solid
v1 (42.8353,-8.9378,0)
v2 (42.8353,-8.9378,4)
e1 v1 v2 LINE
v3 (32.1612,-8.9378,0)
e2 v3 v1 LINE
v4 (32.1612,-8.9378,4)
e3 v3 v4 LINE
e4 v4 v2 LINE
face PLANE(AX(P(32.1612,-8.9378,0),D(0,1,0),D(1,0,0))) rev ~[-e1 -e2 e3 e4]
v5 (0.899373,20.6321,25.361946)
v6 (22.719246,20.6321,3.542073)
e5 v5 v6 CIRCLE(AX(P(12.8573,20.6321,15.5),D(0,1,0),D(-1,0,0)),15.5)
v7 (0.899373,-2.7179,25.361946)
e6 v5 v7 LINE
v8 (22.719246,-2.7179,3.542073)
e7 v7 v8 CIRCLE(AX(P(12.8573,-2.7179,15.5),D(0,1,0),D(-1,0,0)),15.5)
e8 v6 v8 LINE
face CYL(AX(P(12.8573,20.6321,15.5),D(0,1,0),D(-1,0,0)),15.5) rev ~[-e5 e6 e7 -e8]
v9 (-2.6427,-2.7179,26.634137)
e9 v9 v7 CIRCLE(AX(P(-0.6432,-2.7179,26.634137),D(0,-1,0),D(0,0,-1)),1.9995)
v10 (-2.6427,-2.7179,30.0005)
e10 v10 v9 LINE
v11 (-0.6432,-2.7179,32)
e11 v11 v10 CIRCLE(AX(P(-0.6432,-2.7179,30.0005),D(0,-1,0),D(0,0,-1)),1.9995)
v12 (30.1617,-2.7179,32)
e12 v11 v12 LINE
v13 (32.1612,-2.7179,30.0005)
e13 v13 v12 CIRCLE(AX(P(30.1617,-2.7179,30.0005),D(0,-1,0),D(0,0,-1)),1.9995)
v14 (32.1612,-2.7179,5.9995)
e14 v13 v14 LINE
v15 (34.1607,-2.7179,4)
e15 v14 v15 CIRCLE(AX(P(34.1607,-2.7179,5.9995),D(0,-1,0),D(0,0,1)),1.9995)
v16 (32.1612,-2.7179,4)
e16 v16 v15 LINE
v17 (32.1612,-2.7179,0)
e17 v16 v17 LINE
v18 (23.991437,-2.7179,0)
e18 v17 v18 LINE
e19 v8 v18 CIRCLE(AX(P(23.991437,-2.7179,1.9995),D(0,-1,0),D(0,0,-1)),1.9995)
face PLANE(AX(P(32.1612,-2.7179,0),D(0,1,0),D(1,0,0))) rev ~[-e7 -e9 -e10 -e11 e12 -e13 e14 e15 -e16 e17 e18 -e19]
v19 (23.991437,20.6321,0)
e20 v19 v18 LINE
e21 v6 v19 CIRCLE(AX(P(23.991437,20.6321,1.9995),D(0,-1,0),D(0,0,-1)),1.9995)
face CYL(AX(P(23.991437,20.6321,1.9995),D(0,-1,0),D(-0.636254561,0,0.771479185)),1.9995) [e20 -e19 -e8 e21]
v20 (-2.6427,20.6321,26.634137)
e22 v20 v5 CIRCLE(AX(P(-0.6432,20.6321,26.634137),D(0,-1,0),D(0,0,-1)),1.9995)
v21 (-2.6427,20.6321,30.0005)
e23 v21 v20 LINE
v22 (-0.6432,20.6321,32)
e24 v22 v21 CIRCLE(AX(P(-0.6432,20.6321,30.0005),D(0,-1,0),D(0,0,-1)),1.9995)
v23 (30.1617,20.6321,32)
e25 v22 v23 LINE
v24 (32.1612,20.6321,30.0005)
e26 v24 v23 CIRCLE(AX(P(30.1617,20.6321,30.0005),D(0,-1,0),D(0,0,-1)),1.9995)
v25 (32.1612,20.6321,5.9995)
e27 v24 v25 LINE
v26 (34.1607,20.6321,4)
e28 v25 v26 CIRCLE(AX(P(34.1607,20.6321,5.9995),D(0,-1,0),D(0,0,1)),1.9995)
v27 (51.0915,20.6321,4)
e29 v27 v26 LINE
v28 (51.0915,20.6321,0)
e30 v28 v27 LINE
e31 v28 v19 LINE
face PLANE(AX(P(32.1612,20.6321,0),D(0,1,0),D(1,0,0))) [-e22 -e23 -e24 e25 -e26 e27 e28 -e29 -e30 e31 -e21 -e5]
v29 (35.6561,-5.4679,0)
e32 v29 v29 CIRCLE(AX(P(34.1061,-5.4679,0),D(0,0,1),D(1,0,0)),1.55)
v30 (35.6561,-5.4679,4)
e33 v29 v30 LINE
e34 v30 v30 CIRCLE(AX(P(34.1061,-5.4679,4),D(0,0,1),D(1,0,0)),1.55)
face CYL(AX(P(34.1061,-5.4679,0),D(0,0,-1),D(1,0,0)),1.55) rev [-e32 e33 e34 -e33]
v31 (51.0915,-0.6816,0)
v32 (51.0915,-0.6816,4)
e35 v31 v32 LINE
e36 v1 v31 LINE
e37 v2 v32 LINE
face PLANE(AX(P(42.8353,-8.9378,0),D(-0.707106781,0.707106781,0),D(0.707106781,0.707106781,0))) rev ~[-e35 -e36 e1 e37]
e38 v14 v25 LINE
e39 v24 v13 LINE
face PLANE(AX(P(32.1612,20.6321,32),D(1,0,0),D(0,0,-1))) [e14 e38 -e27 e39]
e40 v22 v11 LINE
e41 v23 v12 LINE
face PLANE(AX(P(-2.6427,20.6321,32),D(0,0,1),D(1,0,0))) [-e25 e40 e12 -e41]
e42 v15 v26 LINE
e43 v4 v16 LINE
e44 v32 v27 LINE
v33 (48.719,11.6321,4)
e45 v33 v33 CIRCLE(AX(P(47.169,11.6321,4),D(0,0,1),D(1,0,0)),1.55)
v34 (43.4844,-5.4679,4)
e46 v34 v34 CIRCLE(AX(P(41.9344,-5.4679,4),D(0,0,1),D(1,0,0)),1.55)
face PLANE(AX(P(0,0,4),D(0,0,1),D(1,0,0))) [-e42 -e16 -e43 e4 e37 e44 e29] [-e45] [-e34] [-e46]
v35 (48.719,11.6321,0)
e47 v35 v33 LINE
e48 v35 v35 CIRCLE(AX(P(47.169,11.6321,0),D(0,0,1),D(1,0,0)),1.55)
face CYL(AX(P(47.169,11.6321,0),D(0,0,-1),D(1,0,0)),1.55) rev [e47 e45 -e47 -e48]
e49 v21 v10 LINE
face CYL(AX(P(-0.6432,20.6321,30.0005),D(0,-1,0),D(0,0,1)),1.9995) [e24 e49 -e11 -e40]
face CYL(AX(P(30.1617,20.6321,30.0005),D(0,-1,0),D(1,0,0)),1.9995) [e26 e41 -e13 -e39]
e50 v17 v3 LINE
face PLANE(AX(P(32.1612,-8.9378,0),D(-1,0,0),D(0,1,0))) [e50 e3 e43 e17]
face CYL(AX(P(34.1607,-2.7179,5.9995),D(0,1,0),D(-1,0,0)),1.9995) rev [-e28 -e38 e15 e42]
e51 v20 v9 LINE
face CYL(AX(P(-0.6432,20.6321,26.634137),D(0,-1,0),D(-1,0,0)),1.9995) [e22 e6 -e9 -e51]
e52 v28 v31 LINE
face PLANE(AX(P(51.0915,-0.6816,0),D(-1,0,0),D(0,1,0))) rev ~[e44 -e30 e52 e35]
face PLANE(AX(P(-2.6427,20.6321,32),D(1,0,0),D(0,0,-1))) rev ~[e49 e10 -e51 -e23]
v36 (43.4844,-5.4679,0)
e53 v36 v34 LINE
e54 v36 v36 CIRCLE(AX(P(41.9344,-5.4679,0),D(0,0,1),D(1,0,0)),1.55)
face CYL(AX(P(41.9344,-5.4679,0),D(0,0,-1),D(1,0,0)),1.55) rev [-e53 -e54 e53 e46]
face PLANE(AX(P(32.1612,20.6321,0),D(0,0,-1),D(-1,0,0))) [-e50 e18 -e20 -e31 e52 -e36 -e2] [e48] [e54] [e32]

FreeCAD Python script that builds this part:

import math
import FreeCAD as App
import Part
import Sketcher
from FreeCAD import Vector
Q = App.Units.Quantity


def edges_at(feature, points):
    """Names of the edges that pass closest to the given points."""
    edges = feature.Shape.Edges
    near = lambda p: min(range(len(edges)), key=lambda i: edges[i].distToShape(Part.Vertex(*p))[0])
    return sorted({f"Edge{near(p) + 1}" for p in points})

doc = App.newDocument("Part")
body = doc.addObject("PartDesign::Body", "Body")

# Sketch on XY plane
sketch1 = doc.addObject("Sketcher::SketchObject", "Sketch")
body.addObject(sketch1)
sketch1.AttachmentSupport = (doc.XY_Plane, [""])
sketch1.MapMode = "FlatFace"
sketch1.addGeometry(Part.LineSegment(Vector(32.2, -8.9, 0), Vector(42.8, -8.9, 0)), False)
sketch1.addGeometry(Part.LineSegment(Vector(42.8, -8.9, 0), Vector(51.1, -0.7, 0)), False)
sketch1.addGeometry(Part.LineSegment(Vector(51.1, -0.7, 0), Vector(51.1, 20.6, 0)), False)
sketch1.addGeometry(Part.LineSegment(Vector(51.1, 20.6, 0), Vector(32.2, 20.6, 0)), False)
sketch1.addGeometry(Part.LineSegment(Vector(32.2, 20.6, 0), Vector(32.2, -8.9, 0)), False)
sketch1.addGeometry(Part.Circle(Vector(34.1, -5.5, 0), Vector(0, 0, 1), 1.6), False)
sketch1.addGeometry(Part.Circle(Vector(41.9, -5.5, 0), Vector(0, 0, 1), 1.6), False)
sketch1.addGeometry(Part.Circle(Vector(47.2, 11.6, 0), Vector(0, 0, 1), 1.6), False)
sketch1.addConstraint(Sketcher.Constraint("Coincident", 0, 2, 1, 1))
sketch1.addConstraint(Sketcher.Constraint("Coincident", 1, 2, 2, 1))
sketch1.addConstraint(Sketcher.Constraint("Coincident", 2, 2, 3, 1))
sketch1.addConstraint(Sketcher.Constraint("Coincident", 3, 2, 4, 1))
sketch1.addConstraint(Sketcher.Constraint("Coincident", 4, 2, 0, 1))
sketch1.addConstraint(Sketcher.Constraint("Horizontal", 0))
sketch1.addConstraint(Sketcher.Constraint("Vertical", 2))
sketch1.addConstraint(Sketcher.Constraint("Horizontal", 3))
sketch1.addConstraint(Sketcher.Constraint("Vertical", 4))
sketch1.addConstraint(Sketcher.Constraint("Equal", 5, 6))
sketch1.addConstraint(Sketcher.Constraint("Equal", 6, 7))
sketch1.addConstraint(Sketcher.Constraint("Horizontal", 5, 3, 6, 3))
sketch1.addConstraint(Sketcher.Constraint("Diameter", 5, Q("3.1 mm")))
sketch1.addConstraint(Sketcher.Constraint("Angle", 1, Q("45 deg")))
sketch1.addConstraint(Sketcher.Constraint("DistanceY", 7, 3, 2, 2, Q("9 mm")))
sketch1.addConstraint(Sketcher.Constraint("DistanceY", 4, 2, 4, 1, Q("29.57 mm")))
sketch1.addConstraint(Sketcher.Constraint("DistanceY", 6, 3, 7, 3, Q("17.1 mm")))
sketch1.addConstraint(Sketcher.Constraint("DistanceX", 0, 1, 0, 2, Q("10.674 mm")))
sketch1.addConstraint(Sketcher.Constraint("Distance", 1, Q("11.676 mm")))
sketch1.addConstraint(Sketcher.Constraint("DistanceX", -1, 1, 5, 3, Q("34.106 mm")))
sketch1.addConstraint(Sketcher.Constraint("DistanceY", 5, 3, -1, 1, Q("5.468 mm")))
sketch1.addConstraint(Sketcher.Constraint("DistanceX", -1, 1, 7, 3, Q("47.169 mm")))
sketch1.addConstraint(Sketcher.Constraint("DistanceX", 6, 3, 0, 2, Q("0.901 mm")))
sketch1.addConstraint(Sketcher.Constraint("DistanceX", 3, 2, 5, 3, Q("1.945 mm")))
pad1 = doc.addObject("PartDesign::Pad", "Pad")
body.addObject(pad1)
pad1.Profile = sketch1
pad1.Length = 4

# Sketch on XZ plane
sketch2 = doc.addObject("Sketcher::SketchObject", "Sketch001")
body.addObject(sketch2)
sketch2.AttachmentSupport = (doc.XZ_Plane, [""])
sketch2.MapMode = "FlatFace"
sketch2.AttachmentOffset = App.Placement(Vector(0, 0, -20.6321), App.Rotation())
sketch2.addGeometry(Part.LineSegment(Vector(32, 32, 0), Vector(32, 0, 0)), False)
sketch2.addGeometry(Part.LineSegment(Vector(32, 0, 0), Vector(13, 0, 0)), False)
sketch2.addGeometry(Part.ArcOfCircle(Part.Circle(Vector(13, 16, 0), Vector(0, 0, 1), 16), math.radians(-90), math.radians(180)), False)
sketch2.addGeometry(Part.LineSegment(Vector(-3, 16, 0), Vector(-3, 32, 0)), False)
sketch2.addGeometry(Part.LineSegment(Vector(-3, 32, 0), Vector(32, 32, 0)), False)
sketch2.addConstraint(Sketcher.Constraint("Coincident", 0, 2, 1, 1))
sketch2.addConstraint(Sketcher.Constraint("Tangent", 1, 2, 2, 1))
sketch2.addConstraint(Sketcher.Constraint("Tangent", 2, 2, 3, 1))
sketch2.addConstraint(Sketcher.Constraint("Coincident", 3, 2, 4, 1))
sketch2.addConstraint(Sketcher.Constraint("Coincident", 4, 2, 0, 1))
sketch2.addConstraint(Sketcher.Constraint("Vertical", 0))
sketch2.addConstraint(Sketcher.Constraint("Horizontal", 1))
sketch2.addConstraint(Sketcher.Constraint("Vertical", 3))
sketch2.addConstraint(Sketcher.Constraint("Horizontal", 4))
sketch2.addConstraint(Sketcher.Constraint("PointOnObject", 0, 2, -1))
sketch2.addConstraint(Sketcher.Constraint("Radius", 2, Q("15.5 mm")))
sketch2.addConstraint(Sketcher.Constraint("DistanceY", 0, 2, 0, 1, Q("32 mm")))
sketch2.addConstraint(Sketcher.Constraint("DistanceX", 1, 2, 1, 1, Q("19.304 mm")))
sketch2.addConstraint(Sketcher.Constraint("DistanceX", -1, 1, 2, 3, Q("12.8573 mm")))
pad2 = doc.addObject("PartDesign::Pad", "Pad001")
body.addObject(pad2)
pad2.Profile = sketch2
pad2.Length = 23.35
doc.recompute()

fillet = doc.addObject("PartDesign::Fillet", "Fillet")
body.addObject(fillet)
fillet.Base = (pad2, edges_at(pad2, [
    (-2.643, 8.957, 15.5),
    (12.857, 8.957, 0),
    (32.161, 8.957, 32),
    (-2.643, 8.957, 32),
    (32.161, 8.957, 4),
]))
fillet.Radius = 2

doc.recompute()
